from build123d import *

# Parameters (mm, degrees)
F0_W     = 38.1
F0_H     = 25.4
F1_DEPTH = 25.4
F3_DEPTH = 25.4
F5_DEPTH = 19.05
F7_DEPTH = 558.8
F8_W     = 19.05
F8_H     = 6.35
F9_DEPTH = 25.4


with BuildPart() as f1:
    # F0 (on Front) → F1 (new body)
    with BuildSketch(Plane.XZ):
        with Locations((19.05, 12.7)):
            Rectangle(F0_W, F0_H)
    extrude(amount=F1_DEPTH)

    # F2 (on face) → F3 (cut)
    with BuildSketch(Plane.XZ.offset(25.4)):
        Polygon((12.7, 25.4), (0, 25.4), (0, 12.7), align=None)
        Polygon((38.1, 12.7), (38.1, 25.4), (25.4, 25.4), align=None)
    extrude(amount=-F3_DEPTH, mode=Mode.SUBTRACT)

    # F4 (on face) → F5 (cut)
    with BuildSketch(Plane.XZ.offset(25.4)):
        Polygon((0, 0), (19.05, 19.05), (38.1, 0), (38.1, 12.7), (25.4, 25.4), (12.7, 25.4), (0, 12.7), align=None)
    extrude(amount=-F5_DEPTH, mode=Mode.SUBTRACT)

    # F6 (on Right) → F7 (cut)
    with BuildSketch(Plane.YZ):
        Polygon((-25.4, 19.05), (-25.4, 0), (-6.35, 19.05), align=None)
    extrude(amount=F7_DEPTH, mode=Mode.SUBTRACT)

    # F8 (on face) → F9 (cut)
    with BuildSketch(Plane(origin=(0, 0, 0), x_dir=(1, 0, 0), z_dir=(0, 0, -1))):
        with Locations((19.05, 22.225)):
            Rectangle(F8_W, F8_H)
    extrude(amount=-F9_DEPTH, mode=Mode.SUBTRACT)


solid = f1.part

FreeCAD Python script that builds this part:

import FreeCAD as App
import Part
import Sketcher
Q = App.Units.Quantity


def add_polygon(sketch, points):
    """Adds a closed chain of lines whose ends are joined by coincident constraints."""
    first, n = sketch.GeometryCount, len(points)
    for a, b in zip(points, points[1:] + points[:1]):
        sketch.addGeometry(Part.LineSegment(App.Vector(*a, 0), App.Vector(*b, 0)), False)
    for i in range(n):
        sketch.addConstraint(Sketcher.Constraint("Coincident", first + i, 2, first + (i + 1) % n, 1))

doc = App.newDocument("Part")
body = doc.addObject("PartDesign::Body", "Body")

# Sketch on XZ plane
sketch1 = body.newObject("Sketcher::SketchObject", "Sketch")
sketch1.AttachmentSupport = (doc.getObject("XZ_Plane"), [""])
sketch1.MapMode = "FlatFace"
add_polygon(sketch1, [(0, 25), (0, 0), (38, 0), (38, 25)])  # lines 0-3
sketch1.addConstraint([
    Sketcher.Constraint("Vertical", 0),
    Sketcher.Constraint("Horizontal", 1),
    Sketcher.Constraint("Vertical", 2),
    Sketcher.Constraint("Horizontal", 3),
    Sketcher.Constraint("Coincident", 0, 2, -1, 1),
    Sketcher.Constraint("DistanceY", 0, 2, 0, 1, Q("1 in")),
    Sketcher.Constraint("DistanceX", 1, 1, 1, 2, Q("1.5 in")),
])
pad1 = body.newObject("PartDesign::Pad", "Pad")
pad1.Profile = sketch1
pad1.Length = Q("1 in")

# Sketch on XZ plane
sketch2 = body.newObject("Sketcher::SketchObject", "Sketch001")
sketch2.AttachmentSupport = (doc.getObject("XZ_Plane"), [""])
sketch2.MapMode = "FlatFace"
sketch2.AttachmentOffset = App.Placement(App.Vector(0, 0, 1 * 25.4), App.Rotation())
add_polygon(sketch2, [(13, 25), (0, 25), (0, 13)])  # lines 0-2
add_polygon(sketch2, [(38, 13), (38, 25), (25, 25)])  # lines 3-5
sketch2.addConstraint([
    Sketcher.Constraint("Horizontal", 0),
    Sketcher.Constraint("Vertical", 1),
    Sketcher.Constraint("Vertical", 3),
    Sketcher.Constraint("Horizontal", 4),
    Sketcher.Constraint("PointOnObject", 0, 2, -2),
    Sketcher.Constraint("Perpendicular", 2, 5),
    Sketcher.Constraint("Horizontal", 2, 2, 3, 2),
    Sketcher.Constraint("Horizontal", 1, 2, 5, 2),
    Sketcher.Constraint("Equal", 0, 4),
    Sketcher.Constraint("DistanceX", 0, 2, 0, 1, Q("0.5 in")),
    Sketcher.Constraint("DistanceY", -1, 1, 0, 2, Q("1 in")),
    Sketcher.Constraint("DistanceX", -1, 1, 4, 2, Q("1 in")),
])
pocket1 = body.newObject("PartDesign::Pocket", "Pocket")
pocket1.Profile = sketch2
pocket1.Length = Q("1 in")

# Sketch on XZ plane
sketch3 = body.newObject("Sketcher::SketchObject", "Sketch002")
sketch3.AttachmentSupport = (doc.getObject("XZ_Plane"), [""])
sketch3.MapMode = "FlatFace"
sketch3.AttachmentOffset = App.Placement(App.Vector(0, 0, 1 * 25.4), App.Rotation())
add_polygon(sketch3, [(0, 0), (19, 19), (38, 0), (38, 13), (25, 25), (13, 25), (0, 13)])  # lines 0-6
sketch3.addConstraint([
    Sketcher.Constraint("Vertical", 2),
    Sketcher.Constraint("Horizontal", 4),
    Sketcher.Constraint("Vertical", 6),
    Sketcher.Constraint("Coincident", 6, 2, -1, 1),
    Sketcher.Constraint("PointOnObject", 1, 2, -1),
    Sketcher.Constraint("Perpendicular", 0, 1),
    Sketcher.Constraint("Parallel", 1, 3),
    Sketcher.Constraint("Perpendicular", 3, 5),
    Sketcher.Constraint("Horizontal", 2, 2, 5, 2),
    Sketcher.Constraint("Equal", 4, 2),
    Sketcher.Constraint("Equal", 0, 1),
    Sketcher.Constraint("DistanceX", 4, 2, 4, 1, Q("0.5 in")),
    Sketcher.Constraint("DistanceX", -1, 1, 3, 2, Q("1 in")),
])
pocket2 = body.newObject("PartDesign::Pocket", "Pocket001")
pocket2.Profile = sketch3
pocket2.Length = Q("0.75 in")

# Sketch on YZ plane
sketch4 = body.newObject("Sketcher::SketchObject", "Sketch003")
sketch4.AttachmentSupport = (doc.getObject("YZ_Plane"), [""])
sketch4.MapMode = "FlatFace"
add_polygon(sketch4, [(-25, 19), (-25, 0), (-6, 19)])  # lines 0-2
sketch4.addConstraint([
    Sketcher.Constraint("Vertical", 0),
    Sketcher.Constraint("Horizontal", 2),
    Sketcher.Constraint("PointOnObject", 0, 2, -1),
    Sketcher.Constraint("Equal", 2, 0),
    Sketcher.Constraint("DistanceX", 0, 2, -1, 1, Q("1 in")),
    Sketcher.Constraint("DistanceX", 2, 2, 2, 1, Q("0.75 in")),
])
pocket3 = body.newObject("PartDesign::Pocket", "Pocket002")
pocket3.Profile = sketch4
pocket3.Length = Q("22 in")
pocket3.Reversed = True

# Sketch on XY plane
sketch5 = body.newObject("Sketcher::SketchObject", "Sketch004")
sketch5.AttachmentSupport = (doc.getObject("XY_Plane"), [""])
sketch5.MapMode = "FlatFace"
add_polygon(sketch5, [(10, -25), (10, -19), (29, -19), (29, -25)])  # lines 0-3
sketch5.addConstraint([
    Sketcher.Constraint("Vertical", 0),
    Sketcher.Constraint("Horizontal", 1),
    Sketcher.Constraint("Vertical", 2),
    Sketcher.Constraint("Horizontal", 3),
    Sketcher.Constraint("DistanceY", 2, 2, -1, 1, Q("1 in")),
    Sketcher.Constraint("DistanceX", 1, 1, 1, 2, Q("0.75 in")),
    Sketcher.Constraint("DistanceY", 0, 1, 0, 2, Q("0.25 in")),
    Sketcher.Constraint("DistanceX", -1, 1, 0, 2, Q("0.375 in")),
])
pocket4 = body.newObject("PartDesign::Pocket", "Pocket003")
pocket4.Profile = sketch5
pocket4.Length = Q("1 in")
pocket4.Reversed = True

doc.recompute()
